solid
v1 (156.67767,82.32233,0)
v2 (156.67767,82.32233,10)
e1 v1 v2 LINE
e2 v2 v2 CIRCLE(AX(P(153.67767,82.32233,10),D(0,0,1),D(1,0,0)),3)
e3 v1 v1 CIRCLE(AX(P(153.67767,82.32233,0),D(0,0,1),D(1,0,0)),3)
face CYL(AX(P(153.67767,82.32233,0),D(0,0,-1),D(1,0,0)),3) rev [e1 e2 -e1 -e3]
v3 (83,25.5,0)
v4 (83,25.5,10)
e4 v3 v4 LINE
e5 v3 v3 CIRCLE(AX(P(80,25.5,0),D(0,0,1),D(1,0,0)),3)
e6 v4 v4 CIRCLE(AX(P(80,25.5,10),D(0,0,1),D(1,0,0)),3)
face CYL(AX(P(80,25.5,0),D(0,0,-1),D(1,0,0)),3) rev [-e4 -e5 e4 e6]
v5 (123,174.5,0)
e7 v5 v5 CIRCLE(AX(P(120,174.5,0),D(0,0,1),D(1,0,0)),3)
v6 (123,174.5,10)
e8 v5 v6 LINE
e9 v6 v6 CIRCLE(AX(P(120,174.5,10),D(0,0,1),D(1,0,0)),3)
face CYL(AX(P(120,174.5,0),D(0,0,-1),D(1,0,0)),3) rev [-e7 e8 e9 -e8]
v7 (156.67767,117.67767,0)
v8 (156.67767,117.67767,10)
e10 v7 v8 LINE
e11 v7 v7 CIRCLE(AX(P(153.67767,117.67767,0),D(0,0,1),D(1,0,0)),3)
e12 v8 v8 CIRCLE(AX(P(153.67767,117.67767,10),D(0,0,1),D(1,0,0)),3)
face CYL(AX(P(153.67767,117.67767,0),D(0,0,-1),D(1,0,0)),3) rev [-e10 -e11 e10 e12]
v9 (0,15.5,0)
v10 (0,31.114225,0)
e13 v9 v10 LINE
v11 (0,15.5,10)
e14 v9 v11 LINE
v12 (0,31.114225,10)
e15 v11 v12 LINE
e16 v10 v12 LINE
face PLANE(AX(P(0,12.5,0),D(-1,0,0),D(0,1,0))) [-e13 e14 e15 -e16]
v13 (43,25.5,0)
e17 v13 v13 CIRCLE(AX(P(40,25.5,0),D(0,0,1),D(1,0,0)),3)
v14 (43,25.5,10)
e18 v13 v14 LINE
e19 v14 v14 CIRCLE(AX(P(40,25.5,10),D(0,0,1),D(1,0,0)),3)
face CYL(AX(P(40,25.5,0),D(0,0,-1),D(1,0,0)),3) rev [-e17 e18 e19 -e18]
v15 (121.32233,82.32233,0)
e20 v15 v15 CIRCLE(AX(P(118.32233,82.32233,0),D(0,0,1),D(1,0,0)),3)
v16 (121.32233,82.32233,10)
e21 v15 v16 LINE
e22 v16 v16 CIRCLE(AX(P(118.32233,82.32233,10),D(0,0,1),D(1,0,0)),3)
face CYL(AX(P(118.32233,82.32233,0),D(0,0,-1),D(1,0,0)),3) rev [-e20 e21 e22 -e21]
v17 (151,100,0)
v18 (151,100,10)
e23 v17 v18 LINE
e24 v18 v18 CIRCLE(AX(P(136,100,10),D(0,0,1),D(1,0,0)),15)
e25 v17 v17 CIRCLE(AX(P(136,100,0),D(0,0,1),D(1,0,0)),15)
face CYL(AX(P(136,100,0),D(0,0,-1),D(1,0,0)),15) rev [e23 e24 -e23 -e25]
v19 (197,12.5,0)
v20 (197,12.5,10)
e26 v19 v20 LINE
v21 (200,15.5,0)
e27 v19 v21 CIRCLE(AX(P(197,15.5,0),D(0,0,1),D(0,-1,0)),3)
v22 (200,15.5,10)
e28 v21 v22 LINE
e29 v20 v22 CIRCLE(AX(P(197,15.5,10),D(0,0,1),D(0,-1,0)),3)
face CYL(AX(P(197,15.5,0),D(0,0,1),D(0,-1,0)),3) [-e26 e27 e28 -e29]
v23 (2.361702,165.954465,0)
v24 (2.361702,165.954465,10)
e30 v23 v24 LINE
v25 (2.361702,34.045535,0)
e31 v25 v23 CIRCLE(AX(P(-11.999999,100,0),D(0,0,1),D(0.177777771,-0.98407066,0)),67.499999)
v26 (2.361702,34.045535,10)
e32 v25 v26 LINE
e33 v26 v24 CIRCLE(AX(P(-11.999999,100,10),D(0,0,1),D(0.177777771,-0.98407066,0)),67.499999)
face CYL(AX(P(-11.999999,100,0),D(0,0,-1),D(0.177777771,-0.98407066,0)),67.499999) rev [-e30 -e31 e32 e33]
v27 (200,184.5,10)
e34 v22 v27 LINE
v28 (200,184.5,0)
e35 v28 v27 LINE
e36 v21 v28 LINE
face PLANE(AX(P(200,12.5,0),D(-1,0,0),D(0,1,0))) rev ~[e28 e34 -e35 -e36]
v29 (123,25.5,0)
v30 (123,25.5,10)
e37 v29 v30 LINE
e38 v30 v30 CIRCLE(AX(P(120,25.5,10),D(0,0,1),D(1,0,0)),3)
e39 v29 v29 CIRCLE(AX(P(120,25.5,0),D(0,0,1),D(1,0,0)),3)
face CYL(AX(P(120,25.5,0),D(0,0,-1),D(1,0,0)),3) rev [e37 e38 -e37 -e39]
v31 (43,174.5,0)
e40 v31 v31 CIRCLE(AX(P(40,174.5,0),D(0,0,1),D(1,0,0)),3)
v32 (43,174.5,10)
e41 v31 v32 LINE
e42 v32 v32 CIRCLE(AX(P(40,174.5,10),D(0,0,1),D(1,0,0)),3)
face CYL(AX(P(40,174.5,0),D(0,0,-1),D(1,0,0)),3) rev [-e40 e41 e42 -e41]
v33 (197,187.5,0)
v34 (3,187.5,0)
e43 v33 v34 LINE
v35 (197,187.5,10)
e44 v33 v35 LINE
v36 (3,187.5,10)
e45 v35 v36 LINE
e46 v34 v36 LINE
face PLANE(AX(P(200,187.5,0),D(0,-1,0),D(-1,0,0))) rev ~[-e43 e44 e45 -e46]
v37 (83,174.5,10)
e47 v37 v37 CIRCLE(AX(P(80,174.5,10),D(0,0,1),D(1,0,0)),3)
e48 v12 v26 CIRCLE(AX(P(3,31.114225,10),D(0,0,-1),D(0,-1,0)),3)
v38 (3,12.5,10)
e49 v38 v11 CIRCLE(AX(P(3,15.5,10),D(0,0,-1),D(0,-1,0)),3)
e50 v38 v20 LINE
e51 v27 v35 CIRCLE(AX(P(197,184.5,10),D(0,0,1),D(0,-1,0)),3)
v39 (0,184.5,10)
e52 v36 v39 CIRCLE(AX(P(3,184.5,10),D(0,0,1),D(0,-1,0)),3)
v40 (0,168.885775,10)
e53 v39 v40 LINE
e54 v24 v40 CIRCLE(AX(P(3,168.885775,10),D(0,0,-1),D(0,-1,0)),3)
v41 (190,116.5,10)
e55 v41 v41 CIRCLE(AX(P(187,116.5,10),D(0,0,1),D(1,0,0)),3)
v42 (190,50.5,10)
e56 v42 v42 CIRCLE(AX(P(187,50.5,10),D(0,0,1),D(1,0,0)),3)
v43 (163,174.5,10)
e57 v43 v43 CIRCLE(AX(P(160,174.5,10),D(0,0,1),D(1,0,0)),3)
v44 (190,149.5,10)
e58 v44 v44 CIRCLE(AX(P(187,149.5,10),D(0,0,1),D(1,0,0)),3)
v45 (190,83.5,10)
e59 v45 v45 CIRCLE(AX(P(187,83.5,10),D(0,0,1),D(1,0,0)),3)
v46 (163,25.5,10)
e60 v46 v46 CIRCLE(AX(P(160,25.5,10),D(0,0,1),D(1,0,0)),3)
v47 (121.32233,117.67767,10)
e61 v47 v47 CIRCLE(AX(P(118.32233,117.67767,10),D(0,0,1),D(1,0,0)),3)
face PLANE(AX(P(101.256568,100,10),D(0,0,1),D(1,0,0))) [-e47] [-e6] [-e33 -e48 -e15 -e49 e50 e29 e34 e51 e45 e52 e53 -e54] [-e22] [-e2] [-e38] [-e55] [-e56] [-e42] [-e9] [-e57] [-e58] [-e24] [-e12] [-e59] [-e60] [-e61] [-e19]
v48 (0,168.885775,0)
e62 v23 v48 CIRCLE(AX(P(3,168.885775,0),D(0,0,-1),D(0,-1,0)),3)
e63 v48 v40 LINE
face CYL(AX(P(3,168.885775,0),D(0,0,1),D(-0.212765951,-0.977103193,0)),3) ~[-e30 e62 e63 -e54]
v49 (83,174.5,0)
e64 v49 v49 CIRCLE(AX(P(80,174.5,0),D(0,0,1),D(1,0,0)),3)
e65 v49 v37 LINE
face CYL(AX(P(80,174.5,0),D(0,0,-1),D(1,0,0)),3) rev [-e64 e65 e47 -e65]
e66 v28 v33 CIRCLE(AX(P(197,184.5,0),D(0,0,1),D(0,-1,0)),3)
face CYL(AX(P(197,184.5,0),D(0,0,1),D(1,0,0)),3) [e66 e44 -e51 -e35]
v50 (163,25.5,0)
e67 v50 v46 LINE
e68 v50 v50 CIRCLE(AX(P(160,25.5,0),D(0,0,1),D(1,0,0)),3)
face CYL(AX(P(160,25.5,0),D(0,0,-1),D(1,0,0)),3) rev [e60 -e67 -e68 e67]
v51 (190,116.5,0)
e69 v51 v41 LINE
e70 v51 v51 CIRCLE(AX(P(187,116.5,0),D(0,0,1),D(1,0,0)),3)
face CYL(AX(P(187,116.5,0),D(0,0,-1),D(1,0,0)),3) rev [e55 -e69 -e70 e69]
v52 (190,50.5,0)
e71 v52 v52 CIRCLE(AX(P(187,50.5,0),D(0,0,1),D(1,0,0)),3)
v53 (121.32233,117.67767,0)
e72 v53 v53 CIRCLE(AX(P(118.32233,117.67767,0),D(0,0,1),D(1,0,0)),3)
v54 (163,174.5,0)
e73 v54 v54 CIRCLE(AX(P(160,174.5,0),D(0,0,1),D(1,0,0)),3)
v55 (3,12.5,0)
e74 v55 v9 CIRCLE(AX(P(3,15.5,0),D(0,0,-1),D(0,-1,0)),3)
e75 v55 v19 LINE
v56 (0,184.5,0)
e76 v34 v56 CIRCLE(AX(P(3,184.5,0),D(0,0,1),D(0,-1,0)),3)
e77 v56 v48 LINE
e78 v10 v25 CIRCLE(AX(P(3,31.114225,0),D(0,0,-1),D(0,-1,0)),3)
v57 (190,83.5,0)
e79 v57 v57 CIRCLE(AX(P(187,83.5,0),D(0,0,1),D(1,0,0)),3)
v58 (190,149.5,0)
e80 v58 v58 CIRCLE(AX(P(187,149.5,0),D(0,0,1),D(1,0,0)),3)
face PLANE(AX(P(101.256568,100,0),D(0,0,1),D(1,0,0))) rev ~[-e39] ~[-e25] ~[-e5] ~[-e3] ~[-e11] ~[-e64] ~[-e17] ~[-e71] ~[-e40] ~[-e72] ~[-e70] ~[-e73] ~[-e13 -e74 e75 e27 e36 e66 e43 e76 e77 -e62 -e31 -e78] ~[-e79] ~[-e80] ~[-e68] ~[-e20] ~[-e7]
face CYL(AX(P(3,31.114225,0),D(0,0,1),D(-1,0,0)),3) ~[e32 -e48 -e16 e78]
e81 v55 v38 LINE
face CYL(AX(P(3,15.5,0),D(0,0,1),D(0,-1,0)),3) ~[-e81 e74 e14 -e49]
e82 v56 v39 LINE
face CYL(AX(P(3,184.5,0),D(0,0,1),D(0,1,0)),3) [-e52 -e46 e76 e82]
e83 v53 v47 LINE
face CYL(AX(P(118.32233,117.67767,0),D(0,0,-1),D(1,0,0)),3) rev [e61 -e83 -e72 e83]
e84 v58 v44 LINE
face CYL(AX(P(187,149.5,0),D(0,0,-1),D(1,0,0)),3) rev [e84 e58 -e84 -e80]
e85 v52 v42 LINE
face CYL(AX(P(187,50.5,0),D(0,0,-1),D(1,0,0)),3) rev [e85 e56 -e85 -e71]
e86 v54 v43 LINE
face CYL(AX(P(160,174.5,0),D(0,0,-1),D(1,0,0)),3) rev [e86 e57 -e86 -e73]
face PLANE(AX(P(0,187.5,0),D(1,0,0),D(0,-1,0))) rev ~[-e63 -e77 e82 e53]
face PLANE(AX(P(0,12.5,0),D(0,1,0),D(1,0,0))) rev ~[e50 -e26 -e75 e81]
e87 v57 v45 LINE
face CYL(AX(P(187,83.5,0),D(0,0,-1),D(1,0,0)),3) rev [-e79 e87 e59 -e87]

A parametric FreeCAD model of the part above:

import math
import FreeCAD as App
import Part
import Sketcher
Q = App.Units.Quantity


def edges_at(feature, points):
    """Names of the edges that pass closest to the given points."""
    edges = feature.Shape.Edges
    near = lambda p: min(range(len(edges)), key=lambda i: edges[i].distToShape(Part.Vertex(*p))[0])
    return sorted({f"Edge{near(p) + 1}" for p in points})

doc = App.newDocument("Part")
body = doc.addObject("PartDesign::Body", "Body")

sketch1 = body.newObject("Sketcher::SketchObject", "Sketch")
sketch1.AttachmentSupport = (doc.getObject("XY_Plane"), [""])
sketch1.MapMode = "FlatFace"
sketch1.addGeometry([
    Part.LineSegment(App.Vector(0, 12.5, 0), App.Vector(200, 12.5, 0)),
    Part.LineSegment(App.Vector(200, 12.5, 0), App.Vector(200, 187.5, 0)),
    Part.LineSegment(App.Vector(200, 187.5, 0), App.Vector(0, 187.5, 0)),
    Part.LineSegment(App.Vector(0, 187.5, 0), App.Vector(0, 166.4, 0)),
    Part.ArcOfCircle(Part.Circle(App.Vector(-12, 100, 0), App.Vector(0, 0, 1), 67.5), math.radians(-80), math.radians(80)),
    Part.LineSegment(App.Vector(0, 33.6, 0), App.Vector(0, 12.5, 0)),
    Part.Circle(App.Vector(40, 25.5, 0), App.Vector(0, 0, 1), 3),
    Part.Circle(App.Vector(80, 25.5, 0), App.Vector(0, 0, 1), 3),
    Part.Circle(App.Vector(120, 25.5, 0), App.Vector(0, 0, 1), 3),
    Part.Circle(App.Vector(160, 25.5, 0), App.Vector(0, 0, 1), 3),
    Part.Circle(App.Vector(187, 50.5, 0), App.Vector(0, 0, 1), 3),
    Part.Circle(App.Vector(118.3, 82.3, 0), App.Vector(0, 0, 1), 3),
    Part.Circle(App.Vector(153.7, 82.3, 0), App.Vector(0, 0, 1), 3),
    Part.Circle(App.Vector(187, 83.5, 0), App.Vector(0, 0, 1), 3),
    Part.Circle(App.Vector(40, 174.5, 0), App.Vector(0, 0, 1), 3),
    Part.Circle(App.Vector(80, 174.5, 0), App.Vector(0, 0, 1), 3),
    Part.Circle(App.Vector(118.3, 117.7, 0), App.Vector(0, 0, 1), 3),
    Part.Circle(App.Vector(136, 100, 0), App.Vector(0, 0, 1), 15),
    Part.Circle(App.Vector(153.7, 117.7, 0), App.Vector(0, 0, 1), 3),
    Part.Circle(App.Vector(187, 116.5, 0), App.Vector(0, 0, 1), 3),
    Part.Circle(App.Vector(120, 174.5, 0), App.Vector(0, 0, 1), 3),
    Part.Circle(App.Vector(187, 149.5, 0), App.Vector(0, 0, 1), 3),
    Part.Circle(App.Vector(160, 174.5, 0), App.Vector(0, 0, 1), 3),
], False)
sketch1.addConstraint([
    Sketcher.Constraint("Coincident", 0, 2, 1, 1),
    Sketcher.Constraint("Coincident", 1, 2, 2, 1),
    Sketcher.Constraint("Coincident", 2, 2, 3, 1),
    Sketcher.Constraint("Coincident", 3, 2, 4, 2),
    Sketcher.Constraint("Coincident", 4, 1, 5, 1),
    Sketcher.Constraint("Coincident", 5, 2, 0, 1),
    Sketcher.Constraint("Horizontal", 0),
    Sketcher.Constraint("Vertical", 1),
    Sketcher.Constraint("Horizontal", 2),
    Sketcher.Constraint("Vertical", 3),
    Sketcher.Constraint("Vertical", 5),
    Sketcher.Constraint("Equal", 6, 7),
    Sketcher.Constraint("Equal", 7, 8),
    Sketcher.Constraint("Equal", 8, 9),
    Sketcher.Constraint("Equal", 9, 10),
    Sketcher.Constraint("Equal", 10, 11),
    Sketcher.Constraint("Equal", 11, 12),
    Sketcher.Constraint("Equal", 12, 13),
    Sketcher.Constraint("Equal", 13, 14),
    Sketcher.Constraint("Equal", 14, 15),
    Sketcher.Constraint("Equal", 15, 16),
    Sketcher.Constraint("Equal", 16, 18),
    Sketcher.Constraint("Equal", 18, 19),
    Sketcher.Constraint("Equal", 19, 20),
    Sketcher.Constraint("Equal", 20, 21),
    Sketcher.Constraint("Equal", 21, 22),
    Sketcher.Constraint("PointOnObject", 2, 2, -2),
    Sketcher.Constraint("PointOnObject", 4, 1, -2),
    Sketcher.Constraint("Horizontal", 6, 3, 7, 3),
    Sketcher.Constraint("Horizontal", 7, 3, 8, 3),
    Sketcher.Constraint("Horizontal", 8, 3, 9, 3),
    Sketcher.Constraint("Horizontal", 11, 3, 12, 3),
    Sketcher.Constraint("Horizontal", 14, 3, 15, 3),
    Sketcher.Constraint("Horizontal", 4, 3, 17, 3),
    Sketcher.Constraint("Horizontal", 16, 3, 18, 3),
    Sketcher.Constraint("Horizontal", 15, 3, 20, 3),
    Sketcher.Constraint("Horizontal", 20, 3, 22, 3),
    Sketcher.Constraint("Vertical", 10, 3, 13, 3),
    Sketcher.Constraint("Vertical", 6, 3, 14, 3),
    Sketcher.Constraint("Vertical", 7, 3, 15, 3),
    Sketcher.Constraint("Vertical", 11, 3, 16, 3),
    Sketcher.Constraint("Vertical", 12, 3, 18, 3),
    Sketcher.Constraint("Vertical", 13, 3, 19, 3),
    Sketcher.Constraint("Vertical", 8, 3, 20, 3),
    Sketcher.Constraint("Vertical", 19, 3, 21, 3),
    Sketcher.Constraint("Vertical", 9, 3, 22, 3),
    Sketcher.Constraint("Equal", 3, 5),
    Sketcher.Constraint("Diameter", 6, Q("6 mm")),
    Sketcher.Constraint("Diameter", 17, Q("30 mm")),
    Sketcher.Constraint("Radius", 4, Q("67.499999 mm")),
    Sketcher.Constraint("DistanceX", 0, 1, 0, 2, Q("200 mm")),
    Sketcher.Constraint("DistanceY", 1, 1, 1, 2, Q("175 mm")),
    Sketcher.Constraint("DistanceX", 4, 3, -1, 1, Q("11.999999 mm")),
    Sketcher.Constraint("DistanceY", -1, 1, 4, 3, Q("100 mm")),
    Sketcher.Constraint("DistanceX", -1, 1, 6, 3, Q("40 mm")),
    Sketcher.Constraint("DistanceX", -1, 1, 7, 3, Q("80 mm")),
    Sketcher.Constraint("DistanceX", -1, 1, 8, 3, Q("120 mm")),
    Sketcher.Constraint("DistanceX", -1, 1, 9, 3, Q("160 mm")),
    Sketcher.Constraint("DistanceX", -1, 1, 10, 3, Q("187 mm")),
    Sketcher.Constraint("DistanceX", -1, 1, 17, 3, Q("136 mm")),
    Sketcher.Constraint("DistanceY", 9, 3, 10, 3, Q("25 mm")),
    Sketcher.Constraint("DistanceY", 10, 3, 13, 3, Q("33 mm")),
    Sketcher.Constraint("DistanceY", 6, 3, 14, 3, Q("149 mm")),
    Sketcher.Constraint("DistanceY", 13, 3, 19, 3, Q("33 mm")),
    Sketcher.Constraint("DistanceY", 19, 3, 21, 3, Q("33 mm")),
    Sketcher.Constraint("DistanceY", 0, 2, 10, 3, Q("38 mm")),
    Sketcher.Constraint("DistanceY", 4, 1, 11, 3, Q("48.747099 mm")),
    Sketcher.Constraint("DistanceX", -1, 1, 11, 3, Q("118.32233 mm")),
    Sketcher.Constraint("DistanceX", -1, 1, 12, 3, Q("153.67767 mm")),
    Sketcher.Constraint("DistanceY", -1, 1, 16, 3, Q("117.67767 mm")),
])
pad1 = body.newObject("PartDesign::Pad", "Pad")
pad1.Profile = sketch1
pad1.Length = 10
doc.recompute()

fillet = body.newObject("PartDesign::Fillet", "Fillet")
fillet.Base = (pad1, edges_at(pad1, [
    (0, 12.5, 5),
    (0, 33.575, 5),
    (0, 166.425, 5),
    (0, 187.5, 5),
    (200, 12.5, 5),
    (200, 187.5, 5),
]))
fillet.Radius = 3

doc.recompute()
